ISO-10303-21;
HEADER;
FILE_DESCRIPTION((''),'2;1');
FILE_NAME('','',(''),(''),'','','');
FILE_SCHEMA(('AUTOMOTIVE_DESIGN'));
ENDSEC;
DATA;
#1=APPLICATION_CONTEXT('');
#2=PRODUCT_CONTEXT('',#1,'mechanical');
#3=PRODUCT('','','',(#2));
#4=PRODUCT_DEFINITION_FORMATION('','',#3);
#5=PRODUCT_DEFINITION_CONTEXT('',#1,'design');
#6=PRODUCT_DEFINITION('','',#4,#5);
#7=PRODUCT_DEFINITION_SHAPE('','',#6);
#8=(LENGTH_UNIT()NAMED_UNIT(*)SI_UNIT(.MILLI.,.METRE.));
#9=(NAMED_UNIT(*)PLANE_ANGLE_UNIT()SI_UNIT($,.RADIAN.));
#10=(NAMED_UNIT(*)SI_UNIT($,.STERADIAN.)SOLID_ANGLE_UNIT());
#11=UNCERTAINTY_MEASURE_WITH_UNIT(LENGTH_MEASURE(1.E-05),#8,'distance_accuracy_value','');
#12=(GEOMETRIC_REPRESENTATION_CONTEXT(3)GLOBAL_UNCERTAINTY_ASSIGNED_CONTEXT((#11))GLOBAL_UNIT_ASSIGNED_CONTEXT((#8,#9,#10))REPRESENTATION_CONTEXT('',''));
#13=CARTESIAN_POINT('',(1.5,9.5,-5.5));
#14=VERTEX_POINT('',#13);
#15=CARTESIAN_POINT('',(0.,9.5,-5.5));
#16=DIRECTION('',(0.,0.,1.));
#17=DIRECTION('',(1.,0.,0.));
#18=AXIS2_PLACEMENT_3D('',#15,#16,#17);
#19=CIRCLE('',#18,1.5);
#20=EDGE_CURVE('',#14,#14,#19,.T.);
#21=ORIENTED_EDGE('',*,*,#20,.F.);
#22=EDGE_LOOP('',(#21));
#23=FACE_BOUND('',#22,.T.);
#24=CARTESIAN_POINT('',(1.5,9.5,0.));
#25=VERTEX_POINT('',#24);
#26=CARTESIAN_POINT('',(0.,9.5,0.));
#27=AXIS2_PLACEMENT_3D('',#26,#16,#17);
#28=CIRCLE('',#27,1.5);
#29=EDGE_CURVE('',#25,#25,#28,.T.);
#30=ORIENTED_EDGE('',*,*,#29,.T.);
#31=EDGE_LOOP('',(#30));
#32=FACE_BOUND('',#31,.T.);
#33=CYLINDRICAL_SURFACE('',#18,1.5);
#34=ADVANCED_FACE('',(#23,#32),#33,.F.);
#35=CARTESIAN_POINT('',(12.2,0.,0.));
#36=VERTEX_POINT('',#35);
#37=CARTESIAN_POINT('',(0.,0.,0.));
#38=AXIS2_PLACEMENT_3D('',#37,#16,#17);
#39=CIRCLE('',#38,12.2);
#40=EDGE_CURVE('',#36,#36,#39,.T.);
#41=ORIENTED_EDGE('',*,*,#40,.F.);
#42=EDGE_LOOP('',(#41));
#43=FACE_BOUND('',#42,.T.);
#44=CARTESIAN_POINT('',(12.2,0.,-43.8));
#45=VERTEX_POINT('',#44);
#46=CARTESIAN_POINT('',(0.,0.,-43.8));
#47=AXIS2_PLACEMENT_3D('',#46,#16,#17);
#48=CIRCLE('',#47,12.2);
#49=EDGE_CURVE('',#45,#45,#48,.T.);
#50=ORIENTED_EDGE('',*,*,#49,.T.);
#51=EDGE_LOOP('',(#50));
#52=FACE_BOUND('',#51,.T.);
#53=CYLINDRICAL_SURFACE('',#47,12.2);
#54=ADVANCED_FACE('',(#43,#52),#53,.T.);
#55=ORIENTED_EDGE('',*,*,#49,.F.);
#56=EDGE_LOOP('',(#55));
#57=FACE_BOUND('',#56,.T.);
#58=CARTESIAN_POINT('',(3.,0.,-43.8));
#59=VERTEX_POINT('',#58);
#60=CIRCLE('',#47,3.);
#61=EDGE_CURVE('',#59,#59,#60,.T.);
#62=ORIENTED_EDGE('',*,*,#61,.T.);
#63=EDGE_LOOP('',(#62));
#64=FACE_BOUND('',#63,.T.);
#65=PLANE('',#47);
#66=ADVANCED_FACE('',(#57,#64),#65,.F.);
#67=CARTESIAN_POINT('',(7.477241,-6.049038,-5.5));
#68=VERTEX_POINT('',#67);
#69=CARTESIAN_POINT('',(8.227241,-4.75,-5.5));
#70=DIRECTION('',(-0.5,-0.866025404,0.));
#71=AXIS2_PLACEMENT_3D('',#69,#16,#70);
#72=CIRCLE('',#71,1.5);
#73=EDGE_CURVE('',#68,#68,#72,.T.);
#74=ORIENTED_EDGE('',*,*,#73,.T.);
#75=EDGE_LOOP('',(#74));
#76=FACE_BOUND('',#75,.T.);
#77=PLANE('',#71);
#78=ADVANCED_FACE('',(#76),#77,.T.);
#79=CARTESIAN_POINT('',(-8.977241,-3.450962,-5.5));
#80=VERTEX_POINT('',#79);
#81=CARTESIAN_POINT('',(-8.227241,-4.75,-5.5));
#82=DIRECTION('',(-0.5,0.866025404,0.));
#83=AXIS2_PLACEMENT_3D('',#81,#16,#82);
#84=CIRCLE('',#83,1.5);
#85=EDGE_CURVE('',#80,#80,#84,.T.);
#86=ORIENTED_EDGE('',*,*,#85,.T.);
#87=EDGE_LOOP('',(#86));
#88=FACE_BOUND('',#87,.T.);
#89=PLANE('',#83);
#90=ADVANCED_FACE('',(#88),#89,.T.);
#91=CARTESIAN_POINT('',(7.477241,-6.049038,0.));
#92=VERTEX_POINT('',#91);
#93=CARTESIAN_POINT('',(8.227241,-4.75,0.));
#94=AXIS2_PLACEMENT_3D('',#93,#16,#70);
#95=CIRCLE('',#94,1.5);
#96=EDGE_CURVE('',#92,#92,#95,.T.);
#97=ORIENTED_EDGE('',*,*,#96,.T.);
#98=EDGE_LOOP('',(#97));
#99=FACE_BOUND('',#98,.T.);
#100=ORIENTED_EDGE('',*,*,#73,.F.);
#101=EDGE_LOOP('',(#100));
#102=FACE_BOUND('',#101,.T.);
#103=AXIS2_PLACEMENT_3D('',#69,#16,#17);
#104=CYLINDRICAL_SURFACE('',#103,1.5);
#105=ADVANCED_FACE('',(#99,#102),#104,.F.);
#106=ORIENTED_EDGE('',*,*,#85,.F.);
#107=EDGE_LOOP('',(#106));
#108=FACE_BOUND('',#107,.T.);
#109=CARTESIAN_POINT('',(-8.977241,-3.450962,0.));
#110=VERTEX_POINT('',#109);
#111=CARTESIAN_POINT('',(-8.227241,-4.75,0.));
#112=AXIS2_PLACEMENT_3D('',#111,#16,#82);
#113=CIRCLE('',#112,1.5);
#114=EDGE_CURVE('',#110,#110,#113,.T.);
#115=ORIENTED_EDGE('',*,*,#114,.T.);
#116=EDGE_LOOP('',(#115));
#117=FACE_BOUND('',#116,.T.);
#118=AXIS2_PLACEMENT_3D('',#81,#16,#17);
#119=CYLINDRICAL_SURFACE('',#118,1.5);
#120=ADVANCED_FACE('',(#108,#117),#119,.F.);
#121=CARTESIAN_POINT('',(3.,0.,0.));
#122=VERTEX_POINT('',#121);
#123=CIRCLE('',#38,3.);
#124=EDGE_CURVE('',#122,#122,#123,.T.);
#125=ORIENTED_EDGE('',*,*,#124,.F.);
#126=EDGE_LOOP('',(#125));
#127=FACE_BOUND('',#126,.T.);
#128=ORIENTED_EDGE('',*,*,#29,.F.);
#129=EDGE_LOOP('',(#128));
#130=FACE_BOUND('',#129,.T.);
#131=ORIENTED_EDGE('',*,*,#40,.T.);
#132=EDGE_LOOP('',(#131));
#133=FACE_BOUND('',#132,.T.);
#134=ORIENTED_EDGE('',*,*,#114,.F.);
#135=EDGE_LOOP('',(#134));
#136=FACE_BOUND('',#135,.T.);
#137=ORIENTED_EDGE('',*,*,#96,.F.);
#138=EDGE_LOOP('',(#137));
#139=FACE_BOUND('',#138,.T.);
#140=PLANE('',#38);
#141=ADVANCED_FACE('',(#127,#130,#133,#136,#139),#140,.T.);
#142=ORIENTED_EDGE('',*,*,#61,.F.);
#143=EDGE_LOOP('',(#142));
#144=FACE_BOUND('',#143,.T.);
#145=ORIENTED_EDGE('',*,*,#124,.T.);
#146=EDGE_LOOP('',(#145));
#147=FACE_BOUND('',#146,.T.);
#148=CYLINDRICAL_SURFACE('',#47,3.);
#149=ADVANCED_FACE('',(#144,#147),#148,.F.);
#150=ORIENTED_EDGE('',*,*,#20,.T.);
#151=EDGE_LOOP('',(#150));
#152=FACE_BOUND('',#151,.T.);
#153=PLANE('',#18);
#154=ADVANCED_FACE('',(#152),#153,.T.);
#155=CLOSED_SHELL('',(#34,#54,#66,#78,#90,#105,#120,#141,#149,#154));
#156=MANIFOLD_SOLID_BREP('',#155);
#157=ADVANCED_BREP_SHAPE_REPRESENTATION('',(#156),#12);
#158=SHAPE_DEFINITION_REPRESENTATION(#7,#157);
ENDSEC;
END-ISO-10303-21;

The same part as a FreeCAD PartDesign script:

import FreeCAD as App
import Part
import Sketcher
from FreeCAD import Vector
Q = App.Units.Quantity

doc = App.newDocument("Part")
body = doc.addObject("PartDesign::Body", "Body")

# Sketch on XY plane
sketch1 = doc.addObject("Sketcher::SketchObject", "Sketch")
body.addObject(sketch1)
sketch1.AttachmentSupport = (doc.XY_Plane, [""])
sketch1.MapMode = "FlatFace"
sketch1.addGeometry(Part.Circle(Vector(0, 0, 0), Vector(0, 0, 1), 12.2), False)
sketch1.addGeometry(Part.Circle(Vector(0, 0, 0), Vector(0, 0, 1), 3), False)
sketch1.addConstraint(Sketcher.Constraint("Coincident", 0, 3, -1, 1))
sketch1.addConstraint(Sketcher.Constraint("Coincident", 1, 3, -1, 1))
sketch1.addConstraint(Sketcher.Constraint("Diameter", 1, Q("6 mm")))
sketch1.addConstraint(Sketcher.Constraint("Diameter", 0, Q("24.4 mm")))
pad1 = doc.addObject("PartDesign::Pad", "Pad")
body.addObject(pad1)
pad1.Profile = sketch1
pad1.Length = 43.8
pad1.Reversed = True

# Sketch on XY plane
sketch2 = doc.addObject("Sketcher::SketchObject", "Sketch001")
body.addObject(sketch2)
sketch2.AttachmentSupport = (doc.XY_Plane, [""])
sketch2.MapMode = "FlatFace"
sketch2.addGeometry(Part.Circle(Vector(0, 9.5, 0), Vector(0, 0, 1), 1.5), False)
sketch2.addConstraint(Sketcher.Constraint("PointOnObject", 0, 3, -2))
sketch2.addConstraint(Sketcher.Constraint("Diameter", 0, Q("3 mm")))
sketch2.addConstraint(Sketcher.Constraint("DistanceY", -1, 1, 0, 3, Q("9.5 mm")))
pocket1 = doc.addObject("PartDesign::Pocket", "Pocket")
body.addObject(pocket1)
pocket1.Profile = sketch2
pocket1.Length = 5.5
doc.recompute()

polarpattern = doc.addObject("PartDesign::PolarPattern", "PolarPattern")
body.addObject(polarpattern)
polarpattern.Originals = [pocket1]
polarpattern.Axis = (doc.Z_Axis, [""])
polarpattern.Angle = 360
polarpattern.Occurrences = 3
body.Tip = polarpattern

doc.recompute()
